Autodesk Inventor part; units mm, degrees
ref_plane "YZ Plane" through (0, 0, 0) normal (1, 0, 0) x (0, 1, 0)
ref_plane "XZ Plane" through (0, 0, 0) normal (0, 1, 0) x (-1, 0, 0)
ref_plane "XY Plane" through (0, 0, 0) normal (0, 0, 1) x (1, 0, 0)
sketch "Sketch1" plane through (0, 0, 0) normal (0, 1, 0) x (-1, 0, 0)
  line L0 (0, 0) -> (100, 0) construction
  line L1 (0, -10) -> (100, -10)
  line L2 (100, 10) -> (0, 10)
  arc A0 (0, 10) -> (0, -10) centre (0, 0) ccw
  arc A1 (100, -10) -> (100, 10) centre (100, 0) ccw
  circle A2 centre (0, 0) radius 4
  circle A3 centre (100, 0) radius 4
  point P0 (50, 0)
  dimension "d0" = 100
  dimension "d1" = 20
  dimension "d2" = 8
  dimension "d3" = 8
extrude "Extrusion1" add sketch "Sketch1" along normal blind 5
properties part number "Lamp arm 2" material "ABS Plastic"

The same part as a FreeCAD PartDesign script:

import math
import FreeCAD as App
import Part
import Sketcher

V = App.Vector
Q = App.Units.Quantity

doc = App.newDocument("Part")
body = doc.addObject("PartDesign::Body", "Body")

# Sketch on XZ plane
sketch1 = body.newObject("Sketcher::SketchObject", "Sketch")
sketch1.AttachmentSupport = (doc.getObject("XZ_Plane"), [""])
sketch1.MapMode = "FlatFace"
sketch1.addGeometry([
    Part.ArcOfCircle(Part.Circle(V(0, 0, 0), V(0, 0, 1), 10), math.radians(-90), math.radians(90)),  # 0
    Part.LineSegment(V(0, -10, 0), V(-100, -10, 0)),  # 1
    Part.ArcOfCircle(Part.Circle(V(-100, 0, 0), V(0, 0, 1), 10), math.radians(90), math.radians(270)),  # 2
    Part.LineSegment(V(-100, 10, 0), V(0, 10, 0)),  # 3
    Part.Circle(V(0, 0, 0), V(0, 0, 1), 4),  # 4
    Part.Circle(V(-100, 0, 0), V(0, 0, 1), 4),  # 5
], False)
sketch1.addConstraint([
    Sketcher.Constraint("Tangent", 0, 1, 1, 1),
    Sketcher.Constraint("Tangent", 1, 2, 2, 2),
    Sketcher.Constraint("Tangent", 2, 1, 3, 1),
    Sketcher.Constraint("Tangent", 3, 2, 0, 2),
    Sketcher.Constraint("Horizontal", 1),
    Sketcher.Constraint("Horizontal", 3),
    Sketcher.Constraint("Coincident", 0, 3, -1, 1),
    Sketcher.Constraint("Coincident", 4, 3, -1, 1),
    Sketcher.Constraint("Coincident", 5, 3, 2, 3),
    Sketcher.Constraint("Equal", 4, 5),
    Sketcher.Constraint("Diameter", 4, Q("8 mm")),
    Sketcher.Constraint("Radius", 0, Q("10 mm")),
    Sketcher.Constraint("DistanceX", 1, 2, 1, 1, Q("100 mm")),
])
pad1 = body.newObject("PartDesign::Pad", "Pad")
pad1.Profile = sketch1
pad1.Length = 5
pad1.Reversed = True

doc.recompute()
